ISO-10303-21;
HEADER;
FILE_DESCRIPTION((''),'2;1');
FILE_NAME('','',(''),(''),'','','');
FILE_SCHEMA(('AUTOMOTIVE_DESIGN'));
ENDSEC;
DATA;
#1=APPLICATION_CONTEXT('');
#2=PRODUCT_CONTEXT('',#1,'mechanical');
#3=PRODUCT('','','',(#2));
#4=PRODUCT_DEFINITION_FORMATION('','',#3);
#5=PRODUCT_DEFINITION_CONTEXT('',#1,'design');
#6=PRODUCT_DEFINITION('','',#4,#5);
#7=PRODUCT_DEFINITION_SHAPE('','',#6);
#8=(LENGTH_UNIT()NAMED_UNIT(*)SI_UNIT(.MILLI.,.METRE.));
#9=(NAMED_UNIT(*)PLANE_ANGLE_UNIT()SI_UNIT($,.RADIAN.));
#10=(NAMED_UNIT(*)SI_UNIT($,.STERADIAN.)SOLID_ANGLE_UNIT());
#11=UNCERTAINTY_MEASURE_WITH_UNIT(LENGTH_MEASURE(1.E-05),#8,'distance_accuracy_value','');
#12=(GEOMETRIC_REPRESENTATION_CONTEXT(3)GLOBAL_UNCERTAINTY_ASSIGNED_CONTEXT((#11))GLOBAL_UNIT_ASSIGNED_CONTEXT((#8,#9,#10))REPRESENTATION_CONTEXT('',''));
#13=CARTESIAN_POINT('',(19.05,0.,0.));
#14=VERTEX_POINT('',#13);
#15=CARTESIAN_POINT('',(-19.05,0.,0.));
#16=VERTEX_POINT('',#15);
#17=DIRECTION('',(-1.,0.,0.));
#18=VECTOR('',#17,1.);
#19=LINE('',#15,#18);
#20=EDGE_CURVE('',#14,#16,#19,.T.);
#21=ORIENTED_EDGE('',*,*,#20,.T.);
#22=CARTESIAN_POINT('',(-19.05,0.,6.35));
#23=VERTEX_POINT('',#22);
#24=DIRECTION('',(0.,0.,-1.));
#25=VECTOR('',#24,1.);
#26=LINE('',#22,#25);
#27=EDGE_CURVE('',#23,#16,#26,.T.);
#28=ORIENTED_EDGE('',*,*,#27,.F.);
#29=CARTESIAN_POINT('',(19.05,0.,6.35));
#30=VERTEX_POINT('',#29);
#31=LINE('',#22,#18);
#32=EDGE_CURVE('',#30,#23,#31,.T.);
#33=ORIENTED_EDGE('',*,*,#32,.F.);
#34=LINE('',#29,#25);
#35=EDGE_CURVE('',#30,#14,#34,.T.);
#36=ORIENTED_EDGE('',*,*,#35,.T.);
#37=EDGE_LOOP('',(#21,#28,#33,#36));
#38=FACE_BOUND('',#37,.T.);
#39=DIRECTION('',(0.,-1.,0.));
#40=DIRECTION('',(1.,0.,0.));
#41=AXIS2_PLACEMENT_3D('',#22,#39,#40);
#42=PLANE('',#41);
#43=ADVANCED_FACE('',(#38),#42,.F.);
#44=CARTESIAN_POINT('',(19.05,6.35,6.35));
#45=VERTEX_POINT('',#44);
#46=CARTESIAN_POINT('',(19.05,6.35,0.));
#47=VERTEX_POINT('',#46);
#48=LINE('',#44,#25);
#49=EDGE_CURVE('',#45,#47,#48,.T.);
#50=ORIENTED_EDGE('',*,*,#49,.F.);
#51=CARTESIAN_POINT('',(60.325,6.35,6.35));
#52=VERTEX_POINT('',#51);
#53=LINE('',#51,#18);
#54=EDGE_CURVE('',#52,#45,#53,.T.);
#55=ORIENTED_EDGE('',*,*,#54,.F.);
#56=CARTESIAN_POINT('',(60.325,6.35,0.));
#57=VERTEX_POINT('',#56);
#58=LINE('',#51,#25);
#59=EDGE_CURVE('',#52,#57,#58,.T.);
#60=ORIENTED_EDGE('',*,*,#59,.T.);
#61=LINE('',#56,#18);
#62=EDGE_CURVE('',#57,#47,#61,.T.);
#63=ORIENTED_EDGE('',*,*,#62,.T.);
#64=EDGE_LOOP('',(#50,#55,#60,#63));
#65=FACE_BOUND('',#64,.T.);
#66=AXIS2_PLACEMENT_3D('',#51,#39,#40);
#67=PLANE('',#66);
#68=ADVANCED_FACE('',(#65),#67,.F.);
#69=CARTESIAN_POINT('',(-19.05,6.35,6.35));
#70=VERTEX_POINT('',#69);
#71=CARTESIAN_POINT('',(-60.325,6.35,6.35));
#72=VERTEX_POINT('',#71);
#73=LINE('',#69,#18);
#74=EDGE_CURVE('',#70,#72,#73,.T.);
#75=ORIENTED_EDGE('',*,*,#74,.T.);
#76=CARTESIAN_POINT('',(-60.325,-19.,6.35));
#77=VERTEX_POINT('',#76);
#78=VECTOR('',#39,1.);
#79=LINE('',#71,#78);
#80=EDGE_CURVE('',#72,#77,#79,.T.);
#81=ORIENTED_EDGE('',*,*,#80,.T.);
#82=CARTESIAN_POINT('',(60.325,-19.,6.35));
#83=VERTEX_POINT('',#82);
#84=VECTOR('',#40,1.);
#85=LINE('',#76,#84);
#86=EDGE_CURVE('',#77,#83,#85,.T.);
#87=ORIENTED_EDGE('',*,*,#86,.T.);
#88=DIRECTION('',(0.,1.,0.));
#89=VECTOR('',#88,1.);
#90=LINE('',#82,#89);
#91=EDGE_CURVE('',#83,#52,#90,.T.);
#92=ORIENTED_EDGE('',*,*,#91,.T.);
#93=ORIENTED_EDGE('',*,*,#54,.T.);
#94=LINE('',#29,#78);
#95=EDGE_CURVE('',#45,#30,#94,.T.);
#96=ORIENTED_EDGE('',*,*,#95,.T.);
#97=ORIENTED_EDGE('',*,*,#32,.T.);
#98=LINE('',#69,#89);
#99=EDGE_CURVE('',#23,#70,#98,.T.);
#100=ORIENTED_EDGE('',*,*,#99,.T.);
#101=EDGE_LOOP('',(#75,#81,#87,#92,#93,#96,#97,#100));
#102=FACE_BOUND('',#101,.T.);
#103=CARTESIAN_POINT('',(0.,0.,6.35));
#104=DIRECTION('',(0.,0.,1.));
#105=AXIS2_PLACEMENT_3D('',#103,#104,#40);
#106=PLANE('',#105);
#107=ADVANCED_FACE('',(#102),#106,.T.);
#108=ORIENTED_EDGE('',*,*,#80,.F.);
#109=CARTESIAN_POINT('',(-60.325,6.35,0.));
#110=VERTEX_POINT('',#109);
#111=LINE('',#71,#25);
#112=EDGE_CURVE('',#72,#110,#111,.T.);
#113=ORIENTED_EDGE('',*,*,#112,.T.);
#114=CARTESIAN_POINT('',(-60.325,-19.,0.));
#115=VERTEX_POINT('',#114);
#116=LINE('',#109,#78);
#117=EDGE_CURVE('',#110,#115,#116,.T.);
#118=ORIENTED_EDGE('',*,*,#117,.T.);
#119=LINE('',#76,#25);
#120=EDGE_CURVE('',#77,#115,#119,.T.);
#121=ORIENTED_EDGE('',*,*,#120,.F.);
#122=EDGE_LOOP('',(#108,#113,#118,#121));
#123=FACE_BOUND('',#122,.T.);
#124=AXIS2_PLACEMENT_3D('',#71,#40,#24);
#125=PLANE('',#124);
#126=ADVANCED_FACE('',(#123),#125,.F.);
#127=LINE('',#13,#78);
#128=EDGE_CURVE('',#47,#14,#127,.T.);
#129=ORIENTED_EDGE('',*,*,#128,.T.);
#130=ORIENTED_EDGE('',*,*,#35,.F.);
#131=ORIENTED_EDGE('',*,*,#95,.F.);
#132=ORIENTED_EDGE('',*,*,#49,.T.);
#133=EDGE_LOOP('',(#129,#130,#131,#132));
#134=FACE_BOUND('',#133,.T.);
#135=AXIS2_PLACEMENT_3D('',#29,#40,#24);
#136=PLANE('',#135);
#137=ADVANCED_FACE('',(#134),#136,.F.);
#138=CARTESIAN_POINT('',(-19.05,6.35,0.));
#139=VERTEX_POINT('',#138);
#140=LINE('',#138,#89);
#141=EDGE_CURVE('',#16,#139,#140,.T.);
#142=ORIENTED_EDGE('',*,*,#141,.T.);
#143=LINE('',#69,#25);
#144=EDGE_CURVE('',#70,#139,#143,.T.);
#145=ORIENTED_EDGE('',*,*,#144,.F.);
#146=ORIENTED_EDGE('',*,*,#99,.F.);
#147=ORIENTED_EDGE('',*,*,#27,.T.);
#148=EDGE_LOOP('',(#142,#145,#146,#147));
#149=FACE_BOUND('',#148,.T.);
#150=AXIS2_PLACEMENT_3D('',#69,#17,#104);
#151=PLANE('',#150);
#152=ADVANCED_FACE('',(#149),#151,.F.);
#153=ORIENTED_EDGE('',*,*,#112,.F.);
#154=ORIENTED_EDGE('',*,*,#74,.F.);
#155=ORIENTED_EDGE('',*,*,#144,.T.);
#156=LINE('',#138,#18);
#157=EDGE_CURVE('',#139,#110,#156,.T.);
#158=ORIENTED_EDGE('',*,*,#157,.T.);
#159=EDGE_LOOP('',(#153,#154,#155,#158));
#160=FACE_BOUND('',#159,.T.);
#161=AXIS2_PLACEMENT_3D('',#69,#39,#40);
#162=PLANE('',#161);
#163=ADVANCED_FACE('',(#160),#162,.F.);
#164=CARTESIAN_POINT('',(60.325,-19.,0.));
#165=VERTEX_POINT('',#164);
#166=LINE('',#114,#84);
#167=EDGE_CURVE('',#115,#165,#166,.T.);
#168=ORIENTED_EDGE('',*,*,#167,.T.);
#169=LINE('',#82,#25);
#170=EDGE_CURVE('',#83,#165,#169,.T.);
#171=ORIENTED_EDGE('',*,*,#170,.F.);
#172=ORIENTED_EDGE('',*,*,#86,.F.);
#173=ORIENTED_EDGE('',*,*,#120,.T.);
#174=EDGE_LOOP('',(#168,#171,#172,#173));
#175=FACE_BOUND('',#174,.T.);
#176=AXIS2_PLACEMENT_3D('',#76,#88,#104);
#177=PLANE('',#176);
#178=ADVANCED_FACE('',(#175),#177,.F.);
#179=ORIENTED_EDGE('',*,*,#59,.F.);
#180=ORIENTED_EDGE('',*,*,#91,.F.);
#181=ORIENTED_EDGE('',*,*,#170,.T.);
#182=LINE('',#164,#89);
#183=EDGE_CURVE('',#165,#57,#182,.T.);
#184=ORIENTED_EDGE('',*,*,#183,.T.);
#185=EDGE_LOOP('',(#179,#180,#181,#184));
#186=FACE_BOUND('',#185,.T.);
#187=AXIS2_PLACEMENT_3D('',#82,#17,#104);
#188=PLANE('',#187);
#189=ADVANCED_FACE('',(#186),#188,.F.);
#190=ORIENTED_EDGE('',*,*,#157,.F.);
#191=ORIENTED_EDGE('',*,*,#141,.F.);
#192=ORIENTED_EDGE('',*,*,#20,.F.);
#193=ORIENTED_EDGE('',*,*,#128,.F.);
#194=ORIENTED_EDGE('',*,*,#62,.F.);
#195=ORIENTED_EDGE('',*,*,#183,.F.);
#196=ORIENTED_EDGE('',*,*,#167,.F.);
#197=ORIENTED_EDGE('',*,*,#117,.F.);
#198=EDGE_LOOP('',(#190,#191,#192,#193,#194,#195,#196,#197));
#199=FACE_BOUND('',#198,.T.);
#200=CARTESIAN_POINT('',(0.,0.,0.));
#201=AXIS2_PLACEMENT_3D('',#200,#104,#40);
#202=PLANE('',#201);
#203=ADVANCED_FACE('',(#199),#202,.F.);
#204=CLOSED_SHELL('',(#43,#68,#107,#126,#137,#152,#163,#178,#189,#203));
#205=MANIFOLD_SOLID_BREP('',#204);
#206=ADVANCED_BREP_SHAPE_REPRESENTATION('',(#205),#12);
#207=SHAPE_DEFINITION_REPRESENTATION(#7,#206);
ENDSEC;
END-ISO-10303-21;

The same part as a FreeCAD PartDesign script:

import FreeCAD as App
import Part
import Sketcher
from FreeCAD import Vector
Q = App.Units.Quantity


def add_polygon(sketch, points):
    """Adds a closed chain of lines whose ends are joined by coincident constraints."""
    first, n = sketch.GeometryCount, len(points)
    for a, b in zip(points, points[1:] + points[:1]):
        sketch.addGeometry(Part.LineSegment(App.Vector(*a, 0), App.Vector(*b, 0)), False)
    for i in range(n):
        sketch.addConstraint(Sketcher.Constraint("Coincident", first + i, 2, first + (i + 1) % n, 1))

doc = App.newDocument("Part")
body = doc.addObject("PartDesign::Body", "Body")

# Sketch on XY plane
sketch1 = body.newObject("Sketcher::SketchObject", "Sketch")
sketch1.AttachmentSupport = (doc.getObject("XY_Plane"), [""])
sketch1.MapMode = "FlatFace"
add_polygon(sketch1, [(19, 0), (-19, 0), (-19, 6), (-60, 6), (-60, -19), (60, -19), (60, 6), (19, 6)])  # lines 0-7
sketch1.addConstraint([
    Sketcher.Constraint("Horizontal", 0),
    Sketcher.Constraint("Vertical", 1),
    Sketcher.Constraint("Horizontal", 2),
    Sketcher.Constraint("Vertical", 3),
    Sketcher.Constraint("Horizontal", 4),
    Sketcher.Constraint("Vertical", 5),
    Sketcher.Constraint("Horizontal", 6),
    Sketcher.Constraint("Vertical", 7),
    Sketcher.Constraint("Symmetric", 0, 2, 7, 2, -1, 1),
    Sketcher.Constraint("Symmetric", 2, 2, 5, 2, -2),
    Sketcher.Constraint("DistanceX", 0, 2, 0, 1, Q("1.5 in")),
    Sketcher.Constraint("DistanceX", 4, 1, 4, 2, Q("4.75 in")),
    Sketcher.Constraint("DistanceY", 1, 1, 1, 2, Q("0.25 in")),
    Sketcher.Constraint("DistanceY", 3, 2, 3, 1, Q("25.35 mm")),
])
pad1 = body.newObject("PartDesign::Pad", "Pad")
pad1.Profile = sketch1
pad1.Length = Q("0.25 in")

doc.recompute()
